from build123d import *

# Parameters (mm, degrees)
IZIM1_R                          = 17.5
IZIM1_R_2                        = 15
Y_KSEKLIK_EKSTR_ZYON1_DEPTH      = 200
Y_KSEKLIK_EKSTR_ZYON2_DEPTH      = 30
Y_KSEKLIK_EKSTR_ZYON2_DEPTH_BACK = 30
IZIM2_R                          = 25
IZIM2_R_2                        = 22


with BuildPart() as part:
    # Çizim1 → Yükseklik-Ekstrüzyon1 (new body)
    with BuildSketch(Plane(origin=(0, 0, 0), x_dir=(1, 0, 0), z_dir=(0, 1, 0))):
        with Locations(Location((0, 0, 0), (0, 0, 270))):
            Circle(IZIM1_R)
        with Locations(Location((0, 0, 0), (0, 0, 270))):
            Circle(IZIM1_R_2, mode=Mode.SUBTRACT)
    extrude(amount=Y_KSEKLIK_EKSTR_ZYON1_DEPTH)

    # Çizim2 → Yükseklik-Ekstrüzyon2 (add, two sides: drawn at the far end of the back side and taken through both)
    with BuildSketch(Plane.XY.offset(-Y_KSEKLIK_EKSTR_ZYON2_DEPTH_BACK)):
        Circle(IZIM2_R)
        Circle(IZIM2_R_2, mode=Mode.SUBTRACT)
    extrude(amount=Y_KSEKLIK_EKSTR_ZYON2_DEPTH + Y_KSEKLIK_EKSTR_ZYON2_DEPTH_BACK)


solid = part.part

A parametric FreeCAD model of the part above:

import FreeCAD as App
import Part
import Sketcher
Q = App.Units.Quantity

doc = App.newDocument("Part")
body = doc.addObject("PartDesign::Body", "Body")

# Sketch on XZ plane
sketch1 = body.newObject("Sketcher::SketchObject", "Sketch")
sketch1.AttachmentSupport = (doc.getObject("XZ_Plane"), [""])
sketch1.MapMode = "FlatFace"
sketch1.addGeometry([
    Part.Circle(App.Vector(0, 0, 0), App.Vector(0, 0, 1), 18),
    Part.Circle(App.Vector(0, 0, 0), App.Vector(0, 0, 1), 15),
], False)
sketch1.addConstraint([
    Sketcher.Constraint("Coincident", 0, 3, -1, 1),
    Sketcher.Constraint("Coincident", 1, 3, -1, 1),
    Sketcher.Constraint("Diameter", 0, Q("35 mm")),
    Sketcher.Constraint("Diameter", 1, Q("30 mm")),
])
pad1 = body.newObject("PartDesign::Pad", "Pad")
pad1.Profile = sketch1
pad1.Length = 200
pad1.Reversed = True

# Sketch on XY plane
sketch2 = body.newObject("Sketcher::SketchObject", "Sketch001")
sketch2.AttachmentSupport = (doc.getObject("XY_Plane"), [""])
sketch2.MapMode = "FlatFace"
sketch2.addGeometry([
    Part.Circle(App.Vector(0, 0, 0), App.Vector(0, 0, 1), 25),
    Part.Circle(App.Vector(0, 0, 0), App.Vector(0, 0, 1), 22),
], False)
sketch2.addConstraint([
    Sketcher.Constraint("Coincident", 0, 3, -1, 1),
    Sketcher.Constraint("Coincident", 1, 3, -1, 1),
    Sketcher.Constraint("Diameter", 0, Q("50 mm")),
    Sketcher.Constraint("Diameter", 1, Q("44 mm")),
])
pad2 = body.newObject("PartDesign::Pad", "Pad001")
pad2.Profile = sketch2
pad2.Type = "TwoLengths"
pad2.Length = 30
pad2.Length2 = 30

doc.recompute()
